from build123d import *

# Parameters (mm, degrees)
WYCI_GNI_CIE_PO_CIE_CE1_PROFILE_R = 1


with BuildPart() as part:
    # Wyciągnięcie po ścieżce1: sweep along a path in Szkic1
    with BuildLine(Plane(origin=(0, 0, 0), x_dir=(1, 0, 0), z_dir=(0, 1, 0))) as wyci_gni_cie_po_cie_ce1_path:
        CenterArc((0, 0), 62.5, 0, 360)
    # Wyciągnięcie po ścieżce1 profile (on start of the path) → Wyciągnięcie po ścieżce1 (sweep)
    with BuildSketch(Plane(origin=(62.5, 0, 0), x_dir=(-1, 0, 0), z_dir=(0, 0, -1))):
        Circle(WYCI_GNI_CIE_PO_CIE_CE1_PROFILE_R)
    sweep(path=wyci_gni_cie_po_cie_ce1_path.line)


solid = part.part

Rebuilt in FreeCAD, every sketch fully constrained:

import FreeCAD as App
import Part
import Sketcher
Q = App.Units.Quantity

doc = App.newDocument("Part")
body = doc.addObject("PartDesign::Body", "Body")

sketch1 = body.newObject("Sketcher::SketchObject", "Sketch")
sketch1.AttachmentSupport = (doc.getObject("XY_Plane"), [""])
sketch1.MapMode = "FlatFace"
sketch1.addGeometry(Part.Circle(App.Vector(62.5, 0, 0), App.Vector(0, 0, 1), 1), False)
sketch1.addConstraint(Sketcher.Constraint("PointOnObject", 0, 3, -1))
sketch1.addConstraint(Sketcher.Constraint("Diameter", 0, Q("2 mm")))
sketch1.addConstraint(Sketcher.Constraint("DistanceX", -1, 1, 0, 3, Q("62.5 mm")))

sketch2 = body.newObject("Sketcher::SketchObject", "Sketch001")
sketch2.AttachmentSupport = (doc.getObject("XZ_Plane"), [""])
sketch2.MapMode = "FlatFace"
sketch2.addGeometry(Part.Circle(App.Vector(0, 0, 0), App.Vector(0, 0, 1), 62), False)
sketch2.addConstraint(Sketcher.Constraint("Coincident", 0, 3, -1, 1))
sketch2.addConstraint(Sketcher.Constraint("Diameter", 0, Q("125 mm")))
doc.recompute()

additivepipe = body.newObject("PartDesign::AdditivePipe", "AdditivePipe")
additivepipe.Profile = sketch1
additivepipe.Spine = (sketch2, ["Edge1"])

doc.recompute()
